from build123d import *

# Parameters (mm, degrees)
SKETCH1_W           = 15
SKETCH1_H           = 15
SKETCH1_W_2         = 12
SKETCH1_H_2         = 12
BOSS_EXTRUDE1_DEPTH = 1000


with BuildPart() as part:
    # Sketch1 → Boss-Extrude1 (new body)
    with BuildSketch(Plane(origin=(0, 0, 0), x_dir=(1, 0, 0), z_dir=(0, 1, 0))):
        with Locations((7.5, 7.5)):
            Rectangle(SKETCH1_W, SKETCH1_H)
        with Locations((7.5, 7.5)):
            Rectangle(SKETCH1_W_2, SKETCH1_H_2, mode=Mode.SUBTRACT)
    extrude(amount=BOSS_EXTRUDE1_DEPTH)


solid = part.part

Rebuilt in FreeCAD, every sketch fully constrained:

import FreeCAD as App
import Part
import Sketcher

doc = App.newDocument("Part")
body = doc.addObject("PartDesign::Body", "Body")

sketch1 = body.newObject("Sketcher::SketchObject", "Sketch")
sketch1.AttachmentSupport = (doc.getObject("XZ_Plane"), [""])
sketch1.MapMode = "FlatFace"
sketch1.addGeometry(Part.LineSegment(App.Vector(0, -15, 0), App.Vector(0, 0, 0)), False)
sketch1.addGeometry(Part.LineSegment(App.Vector(0, 0, 0), App.Vector(15, 0, 0)), False)
sketch1.addGeometry(Part.LineSegment(App.Vector(15, 0, 0), App.Vector(15, -15, 0)), False)
sketch1.addGeometry(Part.LineSegment(App.Vector(15, -15, 0), App.Vector(0, -15, 0)), False)
sketch1.addGeometry(Part.LineSegment(App.Vector(14, -2, 0), App.Vector(2, -2, 0)), False)
sketch1.addGeometry(Part.LineSegment(App.Vector(2, -2, 0), App.Vector(2, -14, 0)), False)
sketch1.addGeometry(Part.LineSegment(App.Vector(2, -14, 0), App.Vector(14, -14, 0)), False)
sketch1.addGeometry(Part.LineSegment(App.Vector(14, -14, 0), App.Vector(14, -2, 0)), False)
sketch1.addConstraint(Sketcher.Constraint("Coincident", 0, 2, 1, 1))
sketch1.addConstraint(Sketcher.Constraint("Coincident", 1, 2, 2, 1))
sketch1.addConstraint(Sketcher.Constraint("Coincident", 2, 2, 3, 1))
sketch1.addConstraint(Sketcher.Constraint("Coincident", 3, 2, 0, 1))
sketch1.addConstraint(Sketcher.Constraint("Coincident", 4, 2, 5, 1))
sketch1.addConstraint(Sketcher.Constraint("Coincident", 5, 2, 6, 1))
sketch1.addConstraint(Sketcher.Constraint("Coincident", 6, 2, 7, 1))
sketch1.addConstraint(Sketcher.Constraint("Coincident", 7, 2, 4, 1))
sketch1.addConstraint(Sketcher.Constraint("Vertical", 0))
sketch1.addConstraint(Sketcher.Constraint("Horizontal", 1))
sketch1.addConstraint(Sketcher.Constraint("Vertical", 2))
sketch1.addConstraint(Sketcher.Constraint("Horizontal", 3))
sketch1.addConstraint(Sketcher.Constraint("Horizontal", 4))
sketch1.addConstraint(Sketcher.Constraint("Vertical", 5))
sketch1.addConstraint(Sketcher.Constraint("Horizontal", 6))
sketch1.addConstraint(Sketcher.Constraint("Vertical", 7))
sketch1.addConstraint(Sketcher.Constraint("Coincident", 0, 2, -1, 1))
sketch1.addConstraint(Sketcher.Constraint("Equal", 3, 0))
sketch1.addConstraint(Sketcher.Constraint("Equal", 6, 5))
sketch1.addConstraint(Sketcher.Constraint("DistanceX", 1, 1, 1, 2, 15.0))
sketch1.addConstraint(Sketcher.Constraint("DistanceX", 4, 2, 4, 1, 12.0))
sketch1.addConstraint(Sketcher.Constraint("DistanceX", -1, 1, 4, 2, 1.5))
sketch1.addConstraint(Sketcher.Constraint("DistanceY", 4, 2, -1, 1, 1.5))
pad1 = body.newObject("PartDesign::Pad", "Pad")
pad1.Profile = sketch1
pad1.Length = 1000
pad1.Reversed = True

doc.recompute()
